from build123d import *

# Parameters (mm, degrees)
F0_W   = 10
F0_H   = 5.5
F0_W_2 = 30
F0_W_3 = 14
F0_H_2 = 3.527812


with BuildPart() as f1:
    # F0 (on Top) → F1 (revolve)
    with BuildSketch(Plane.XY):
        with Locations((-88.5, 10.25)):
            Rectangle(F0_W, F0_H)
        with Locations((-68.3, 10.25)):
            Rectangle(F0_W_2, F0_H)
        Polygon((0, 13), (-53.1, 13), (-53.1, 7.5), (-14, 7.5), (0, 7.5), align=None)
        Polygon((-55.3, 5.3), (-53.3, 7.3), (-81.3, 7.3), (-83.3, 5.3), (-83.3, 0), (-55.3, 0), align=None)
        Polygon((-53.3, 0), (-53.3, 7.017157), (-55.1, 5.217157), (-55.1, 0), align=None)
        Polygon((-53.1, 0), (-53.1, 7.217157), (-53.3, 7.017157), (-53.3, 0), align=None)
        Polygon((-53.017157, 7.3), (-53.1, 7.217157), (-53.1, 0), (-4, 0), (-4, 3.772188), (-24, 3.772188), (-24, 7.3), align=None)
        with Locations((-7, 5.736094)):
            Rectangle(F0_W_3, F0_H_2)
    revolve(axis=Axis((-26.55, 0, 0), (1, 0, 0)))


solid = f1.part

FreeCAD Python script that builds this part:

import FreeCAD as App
import Part
import Sketcher
from FreeCAD import Vector
Q = App.Units.Quantity

doc = App.newDocument("Part")
body = doc.addObject("PartDesign::Body", "Body")
body.AllowCompound = True

sketch1 = body.newObject("Sketcher::SketchObject", "Sketch")
sketch1.AttachmentSupport = (doc.getObject("XY_Plane"), [""])
sketch1.MapMode = "FlatFace"
sketch1.addGeometry([
    Part.LineSegment(Vector(-93.5, 13, 0), Vector(-93.5, 7.5, 0)),
    Part.LineSegment(Vector(-93.5, 7.5, 0), Vector(-83.5, 7.5, 0)),
    Part.LineSegment(Vector(-83.5, 7.5, 0), Vector(-83.5, 13, 0)),
    Part.LineSegment(Vector(-83.5, 13, 0), Vector(-93.5, 13, 0)),
    Part.LineSegment(Vector(-83.3, 13, 0), Vector(-83.3, 7.5, 0)),
    Part.LineSegment(Vector(-83.3, 7.5, 0), Vector(-53.3, 7.5, 0)),
    Part.LineSegment(Vector(-53.3, 7.5, 0), Vector(-53.3, 13, 0)),
    Part.LineSegment(Vector(-53.3, 13, 0), Vector(-83.3, 13, 0)),
    Part.LineSegment(Vector(0, 13, 0), Vector(-53.1, 13, 0)),
    Part.LineSegment(Vector(-53.1, 13, 0), Vector(-53.1, 7.5, 0)),
    Part.LineSegment(Vector(-53.1, 7.5, 0), Vector(-14, 7.5, 0)),
    Part.LineSegment(Vector(-14, 7.5, 0), Vector(-14, 4, 0)),
    Part.LineSegment(Vector(-14, 4, 0), Vector(0, 4, 0)),
    Part.LineSegment(Vector(0, 4, 0), Vector(0, 13, 0)),
    Part.LineSegment(Vector(-55.3, 5.3, 0), Vector(-53.3, 7.3, 0)),
    Part.LineSegment(Vector(-53.3, 7.3, 0), Vector(-81.3, 7.3, 0)),
    Part.LineSegment(Vector(-81.3, 7.3, 0), Vector(-83.3, 5.3, 0)),
    Part.LineSegment(Vector(-83.3, 5.3, 0), Vector(-83.3, 0, 0)),
    Part.LineSegment(Vector(-83.3, 0, 0), Vector(-55.3, 0, 0)),
    Part.LineSegment(Vector(-55.3, 0, 0), Vector(-55.3, 5.3, 0)),
    Part.LineSegment(Vector(-55.1, 5.2, 0), Vector(-55.1, 0, 0)),
    Part.LineSegment(Vector(-55.1, 0, 0), Vector(-4, 0, 0)),
    Part.LineSegment(Vector(-4, 0, 0), Vector(-4, 3.8, 0)),
    Part.LineSegment(Vector(-4, 3.8, 0), Vector(-24, 3.8, 0)),
    Part.LineSegment(Vector(-24, 3.8, 0), Vector(-24, 7.3, 0)),
    Part.LineSegment(Vector(-24, 7.3, 0), Vector(-53, 7.3, 0)),
    Part.LineSegment(Vector(-53, 7.3, 0), Vector(-55.1, 5.2, 0)),
], False)
sketch1.addConstraint([
    Sketcher.Constraint("Coincident", 0, 2, 1, 1),
    Sketcher.Constraint("Coincident", 1, 2, 2, 1),
    Sketcher.Constraint("Coincident", 2, 2, 3, 1),
    Sketcher.Constraint("Coincident", 3, 2, 0, 1),
    Sketcher.Constraint("Coincident", 4, 2, 5, 1),
    Sketcher.Constraint("Coincident", 5, 2, 6, 1),
    Sketcher.Constraint("Coincident", 6, 2, 7, 1),
    Sketcher.Constraint("Coincident", 7, 2, 4, 1),
    Sketcher.Constraint("Coincident", 8, 2, 9, 1),
    Sketcher.Constraint("Coincident", 9, 2, 10, 1),
    Sketcher.Constraint("Coincident", 10, 2, 11, 1),
    Sketcher.Constraint("Coincident", 11, 2, 12, 1),
    Sketcher.Constraint("Coincident", 12, 2, 13, 1),
    Sketcher.Constraint("Coincident", 13, 2, 8, 1),
    Sketcher.Constraint("Coincident", 14, 2, 15, 1),
    Sketcher.Constraint("Coincident", 15, 2, 16, 1),
    Sketcher.Constraint("Coincident", 16, 2, 17, 1),
    Sketcher.Constraint("Coincident", 17, 2, 18, 1),
    Sketcher.Constraint("Coincident", 18, 2, 19, 1),
    Sketcher.Constraint("Coincident", 19, 2, 14, 1),
    Sketcher.Constraint("Coincident", 20, 2, 21, 1),
    Sketcher.Constraint("Coincident", 21, 2, 22, 1),
    Sketcher.Constraint("Coincident", 22, 2, 23, 1),
    Sketcher.Constraint("Coincident", 23, 2, 24, 1),
    Sketcher.Constraint("Coincident", 24, 2, 25, 1),
    Sketcher.Constraint("Coincident", 25, 2, 26, 1),
    Sketcher.Constraint("Coincident", 26, 2, 20, 1),
    Sketcher.Constraint("Vertical", 0),
    Sketcher.Constraint("Horizontal", 1),
    Sketcher.Constraint("Vertical", 2),
    Sketcher.Constraint("Horizontal", 3),
    Sketcher.Constraint("Vertical", 4),
    Sketcher.Constraint("Horizontal", 5),
    Sketcher.Constraint("Vertical", 6),
    Sketcher.Constraint("Horizontal", 7),
    Sketcher.Constraint("Horizontal", 8),
    Sketcher.Constraint("Vertical", 9),
    Sketcher.Constraint("Horizontal", 10),
    Sketcher.Constraint("Vertical", 11),
    Sketcher.Constraint("Horizontal", 12),
    Sketcher.Constraint("Vertical", 13),
    Sketcher.Constraint("Horizontal", 15),
    Sketcher.Constraint("Vertical", 17),
    Sketcher.Constraint("Horizontal", 18),
    Sketcher.Constraint("Vertical", 19),
    Sketcher.Constraint("Vertical", 20),
    Sketcher.Constraint("Horizontal", 21),
    Sketcher.Constraint("Vertical", 22),
    Sketcher.Constraint("Horizontal", 23),
    Sketcher.Constraint("Vertical", 24),
    Sketcher.Constraint("Horizontal", 25),
    Sketcher.Constraint("PointOnObject", 12, 2, -2),
    Sketcher.Constraint("PointOnObject", 17, 2, -1),
    Sketcher.Constraint("PointOnObject", 20, 2, -1),
    Sketcher.Constraint("Parallel", 14, 16),
    Sketcher.Constraint("Parallel", 16, 26),
    Sketcher.Constraint("Horizontal", 1, 2, 4, 2),
    Sketcher.Constraint("Horizontal", 3, 2, 6, 2),
    Sketcher.Constraint("Horizontal", 7, 2, 8, 2),
    Sketcher.Constraint("Horizontal", 5, 2, 9, 2),
    Sketcher.Constraint("Horizontal", 16, 2, 19, 2),
    Sketcher.Constraint("Horizontal", 15, 2, 24, 2),
    Sketcher.Constraint("Vertical", 6, 2, 14, 2),
    Sketcher.Constraint("Vertical", 7, 2, 16, 2),
    Sketcher.Constraint("Equal", 11, 24),
    Sketcher.Constraint("DistanceX", 1, 1, 1, 2, Q("10 mm")),
    Sketcher.Constraint("DistanceX", 5, 1, 5, 2, Q("30 mm")),
    Sketcher.Constraint("DistanceX", 12, 1, 12, 2, Q("14 mm")),
    Sketcher.Constraint("DistanceX", 15, 2, 15, 1, Q("28 mm")),
    Sketcher.Constraint("DistanceX", 23, 2, 23, 1, Q("20 mm")),
    Sketcher.Constraint("Angle", 14, Q("45 deg")),
    Sketcher.Constraint("DistanceX", 8, 2, 8, 1, Q("53.1 mm")),
    Sketcher.Constraint("DistanceX", 21, 1, 21, 2, Q("51.1 mm")),
    Sketcher.Constraint("DistanceY", 0, 2, 0, 1, Q("5.5 mm")),
    Sketcher.Constraint("DistanceY", 17, 2, 17, 1, Q("5.3 mm")),
    Sketcher.Constraint("DistanceY", -1, 1, 2, 2, Q("13 mm")),
    Sketcher.Constraint("DistanceX", 21, 2, -1, 1, Q("4 mm")),
    Sketcher.Constraint("DistanceX", 0, 2, -1, 1, Q("93.5 mm")),
    Sketcher.Constraint("DistanceX", 4, 2, -1, 1, Q("83.3 mm")),
    Sketcher.Constraint("DistanceY", 11, 2, 11, 1, Q("3.527812 mm")),
    Sketcher.Constraint("DistanceX", 25, 2, 25, 1, Q("29.017157 mm")),
])
revolution = body.newObject("PartDesign::Revolution", "Revolution")
revolution.Profile = sketch1
revolution.ReferenceAxis = (sketch1, ["H_Axis"])
revolution.Angle = 360

doc.recompute()
